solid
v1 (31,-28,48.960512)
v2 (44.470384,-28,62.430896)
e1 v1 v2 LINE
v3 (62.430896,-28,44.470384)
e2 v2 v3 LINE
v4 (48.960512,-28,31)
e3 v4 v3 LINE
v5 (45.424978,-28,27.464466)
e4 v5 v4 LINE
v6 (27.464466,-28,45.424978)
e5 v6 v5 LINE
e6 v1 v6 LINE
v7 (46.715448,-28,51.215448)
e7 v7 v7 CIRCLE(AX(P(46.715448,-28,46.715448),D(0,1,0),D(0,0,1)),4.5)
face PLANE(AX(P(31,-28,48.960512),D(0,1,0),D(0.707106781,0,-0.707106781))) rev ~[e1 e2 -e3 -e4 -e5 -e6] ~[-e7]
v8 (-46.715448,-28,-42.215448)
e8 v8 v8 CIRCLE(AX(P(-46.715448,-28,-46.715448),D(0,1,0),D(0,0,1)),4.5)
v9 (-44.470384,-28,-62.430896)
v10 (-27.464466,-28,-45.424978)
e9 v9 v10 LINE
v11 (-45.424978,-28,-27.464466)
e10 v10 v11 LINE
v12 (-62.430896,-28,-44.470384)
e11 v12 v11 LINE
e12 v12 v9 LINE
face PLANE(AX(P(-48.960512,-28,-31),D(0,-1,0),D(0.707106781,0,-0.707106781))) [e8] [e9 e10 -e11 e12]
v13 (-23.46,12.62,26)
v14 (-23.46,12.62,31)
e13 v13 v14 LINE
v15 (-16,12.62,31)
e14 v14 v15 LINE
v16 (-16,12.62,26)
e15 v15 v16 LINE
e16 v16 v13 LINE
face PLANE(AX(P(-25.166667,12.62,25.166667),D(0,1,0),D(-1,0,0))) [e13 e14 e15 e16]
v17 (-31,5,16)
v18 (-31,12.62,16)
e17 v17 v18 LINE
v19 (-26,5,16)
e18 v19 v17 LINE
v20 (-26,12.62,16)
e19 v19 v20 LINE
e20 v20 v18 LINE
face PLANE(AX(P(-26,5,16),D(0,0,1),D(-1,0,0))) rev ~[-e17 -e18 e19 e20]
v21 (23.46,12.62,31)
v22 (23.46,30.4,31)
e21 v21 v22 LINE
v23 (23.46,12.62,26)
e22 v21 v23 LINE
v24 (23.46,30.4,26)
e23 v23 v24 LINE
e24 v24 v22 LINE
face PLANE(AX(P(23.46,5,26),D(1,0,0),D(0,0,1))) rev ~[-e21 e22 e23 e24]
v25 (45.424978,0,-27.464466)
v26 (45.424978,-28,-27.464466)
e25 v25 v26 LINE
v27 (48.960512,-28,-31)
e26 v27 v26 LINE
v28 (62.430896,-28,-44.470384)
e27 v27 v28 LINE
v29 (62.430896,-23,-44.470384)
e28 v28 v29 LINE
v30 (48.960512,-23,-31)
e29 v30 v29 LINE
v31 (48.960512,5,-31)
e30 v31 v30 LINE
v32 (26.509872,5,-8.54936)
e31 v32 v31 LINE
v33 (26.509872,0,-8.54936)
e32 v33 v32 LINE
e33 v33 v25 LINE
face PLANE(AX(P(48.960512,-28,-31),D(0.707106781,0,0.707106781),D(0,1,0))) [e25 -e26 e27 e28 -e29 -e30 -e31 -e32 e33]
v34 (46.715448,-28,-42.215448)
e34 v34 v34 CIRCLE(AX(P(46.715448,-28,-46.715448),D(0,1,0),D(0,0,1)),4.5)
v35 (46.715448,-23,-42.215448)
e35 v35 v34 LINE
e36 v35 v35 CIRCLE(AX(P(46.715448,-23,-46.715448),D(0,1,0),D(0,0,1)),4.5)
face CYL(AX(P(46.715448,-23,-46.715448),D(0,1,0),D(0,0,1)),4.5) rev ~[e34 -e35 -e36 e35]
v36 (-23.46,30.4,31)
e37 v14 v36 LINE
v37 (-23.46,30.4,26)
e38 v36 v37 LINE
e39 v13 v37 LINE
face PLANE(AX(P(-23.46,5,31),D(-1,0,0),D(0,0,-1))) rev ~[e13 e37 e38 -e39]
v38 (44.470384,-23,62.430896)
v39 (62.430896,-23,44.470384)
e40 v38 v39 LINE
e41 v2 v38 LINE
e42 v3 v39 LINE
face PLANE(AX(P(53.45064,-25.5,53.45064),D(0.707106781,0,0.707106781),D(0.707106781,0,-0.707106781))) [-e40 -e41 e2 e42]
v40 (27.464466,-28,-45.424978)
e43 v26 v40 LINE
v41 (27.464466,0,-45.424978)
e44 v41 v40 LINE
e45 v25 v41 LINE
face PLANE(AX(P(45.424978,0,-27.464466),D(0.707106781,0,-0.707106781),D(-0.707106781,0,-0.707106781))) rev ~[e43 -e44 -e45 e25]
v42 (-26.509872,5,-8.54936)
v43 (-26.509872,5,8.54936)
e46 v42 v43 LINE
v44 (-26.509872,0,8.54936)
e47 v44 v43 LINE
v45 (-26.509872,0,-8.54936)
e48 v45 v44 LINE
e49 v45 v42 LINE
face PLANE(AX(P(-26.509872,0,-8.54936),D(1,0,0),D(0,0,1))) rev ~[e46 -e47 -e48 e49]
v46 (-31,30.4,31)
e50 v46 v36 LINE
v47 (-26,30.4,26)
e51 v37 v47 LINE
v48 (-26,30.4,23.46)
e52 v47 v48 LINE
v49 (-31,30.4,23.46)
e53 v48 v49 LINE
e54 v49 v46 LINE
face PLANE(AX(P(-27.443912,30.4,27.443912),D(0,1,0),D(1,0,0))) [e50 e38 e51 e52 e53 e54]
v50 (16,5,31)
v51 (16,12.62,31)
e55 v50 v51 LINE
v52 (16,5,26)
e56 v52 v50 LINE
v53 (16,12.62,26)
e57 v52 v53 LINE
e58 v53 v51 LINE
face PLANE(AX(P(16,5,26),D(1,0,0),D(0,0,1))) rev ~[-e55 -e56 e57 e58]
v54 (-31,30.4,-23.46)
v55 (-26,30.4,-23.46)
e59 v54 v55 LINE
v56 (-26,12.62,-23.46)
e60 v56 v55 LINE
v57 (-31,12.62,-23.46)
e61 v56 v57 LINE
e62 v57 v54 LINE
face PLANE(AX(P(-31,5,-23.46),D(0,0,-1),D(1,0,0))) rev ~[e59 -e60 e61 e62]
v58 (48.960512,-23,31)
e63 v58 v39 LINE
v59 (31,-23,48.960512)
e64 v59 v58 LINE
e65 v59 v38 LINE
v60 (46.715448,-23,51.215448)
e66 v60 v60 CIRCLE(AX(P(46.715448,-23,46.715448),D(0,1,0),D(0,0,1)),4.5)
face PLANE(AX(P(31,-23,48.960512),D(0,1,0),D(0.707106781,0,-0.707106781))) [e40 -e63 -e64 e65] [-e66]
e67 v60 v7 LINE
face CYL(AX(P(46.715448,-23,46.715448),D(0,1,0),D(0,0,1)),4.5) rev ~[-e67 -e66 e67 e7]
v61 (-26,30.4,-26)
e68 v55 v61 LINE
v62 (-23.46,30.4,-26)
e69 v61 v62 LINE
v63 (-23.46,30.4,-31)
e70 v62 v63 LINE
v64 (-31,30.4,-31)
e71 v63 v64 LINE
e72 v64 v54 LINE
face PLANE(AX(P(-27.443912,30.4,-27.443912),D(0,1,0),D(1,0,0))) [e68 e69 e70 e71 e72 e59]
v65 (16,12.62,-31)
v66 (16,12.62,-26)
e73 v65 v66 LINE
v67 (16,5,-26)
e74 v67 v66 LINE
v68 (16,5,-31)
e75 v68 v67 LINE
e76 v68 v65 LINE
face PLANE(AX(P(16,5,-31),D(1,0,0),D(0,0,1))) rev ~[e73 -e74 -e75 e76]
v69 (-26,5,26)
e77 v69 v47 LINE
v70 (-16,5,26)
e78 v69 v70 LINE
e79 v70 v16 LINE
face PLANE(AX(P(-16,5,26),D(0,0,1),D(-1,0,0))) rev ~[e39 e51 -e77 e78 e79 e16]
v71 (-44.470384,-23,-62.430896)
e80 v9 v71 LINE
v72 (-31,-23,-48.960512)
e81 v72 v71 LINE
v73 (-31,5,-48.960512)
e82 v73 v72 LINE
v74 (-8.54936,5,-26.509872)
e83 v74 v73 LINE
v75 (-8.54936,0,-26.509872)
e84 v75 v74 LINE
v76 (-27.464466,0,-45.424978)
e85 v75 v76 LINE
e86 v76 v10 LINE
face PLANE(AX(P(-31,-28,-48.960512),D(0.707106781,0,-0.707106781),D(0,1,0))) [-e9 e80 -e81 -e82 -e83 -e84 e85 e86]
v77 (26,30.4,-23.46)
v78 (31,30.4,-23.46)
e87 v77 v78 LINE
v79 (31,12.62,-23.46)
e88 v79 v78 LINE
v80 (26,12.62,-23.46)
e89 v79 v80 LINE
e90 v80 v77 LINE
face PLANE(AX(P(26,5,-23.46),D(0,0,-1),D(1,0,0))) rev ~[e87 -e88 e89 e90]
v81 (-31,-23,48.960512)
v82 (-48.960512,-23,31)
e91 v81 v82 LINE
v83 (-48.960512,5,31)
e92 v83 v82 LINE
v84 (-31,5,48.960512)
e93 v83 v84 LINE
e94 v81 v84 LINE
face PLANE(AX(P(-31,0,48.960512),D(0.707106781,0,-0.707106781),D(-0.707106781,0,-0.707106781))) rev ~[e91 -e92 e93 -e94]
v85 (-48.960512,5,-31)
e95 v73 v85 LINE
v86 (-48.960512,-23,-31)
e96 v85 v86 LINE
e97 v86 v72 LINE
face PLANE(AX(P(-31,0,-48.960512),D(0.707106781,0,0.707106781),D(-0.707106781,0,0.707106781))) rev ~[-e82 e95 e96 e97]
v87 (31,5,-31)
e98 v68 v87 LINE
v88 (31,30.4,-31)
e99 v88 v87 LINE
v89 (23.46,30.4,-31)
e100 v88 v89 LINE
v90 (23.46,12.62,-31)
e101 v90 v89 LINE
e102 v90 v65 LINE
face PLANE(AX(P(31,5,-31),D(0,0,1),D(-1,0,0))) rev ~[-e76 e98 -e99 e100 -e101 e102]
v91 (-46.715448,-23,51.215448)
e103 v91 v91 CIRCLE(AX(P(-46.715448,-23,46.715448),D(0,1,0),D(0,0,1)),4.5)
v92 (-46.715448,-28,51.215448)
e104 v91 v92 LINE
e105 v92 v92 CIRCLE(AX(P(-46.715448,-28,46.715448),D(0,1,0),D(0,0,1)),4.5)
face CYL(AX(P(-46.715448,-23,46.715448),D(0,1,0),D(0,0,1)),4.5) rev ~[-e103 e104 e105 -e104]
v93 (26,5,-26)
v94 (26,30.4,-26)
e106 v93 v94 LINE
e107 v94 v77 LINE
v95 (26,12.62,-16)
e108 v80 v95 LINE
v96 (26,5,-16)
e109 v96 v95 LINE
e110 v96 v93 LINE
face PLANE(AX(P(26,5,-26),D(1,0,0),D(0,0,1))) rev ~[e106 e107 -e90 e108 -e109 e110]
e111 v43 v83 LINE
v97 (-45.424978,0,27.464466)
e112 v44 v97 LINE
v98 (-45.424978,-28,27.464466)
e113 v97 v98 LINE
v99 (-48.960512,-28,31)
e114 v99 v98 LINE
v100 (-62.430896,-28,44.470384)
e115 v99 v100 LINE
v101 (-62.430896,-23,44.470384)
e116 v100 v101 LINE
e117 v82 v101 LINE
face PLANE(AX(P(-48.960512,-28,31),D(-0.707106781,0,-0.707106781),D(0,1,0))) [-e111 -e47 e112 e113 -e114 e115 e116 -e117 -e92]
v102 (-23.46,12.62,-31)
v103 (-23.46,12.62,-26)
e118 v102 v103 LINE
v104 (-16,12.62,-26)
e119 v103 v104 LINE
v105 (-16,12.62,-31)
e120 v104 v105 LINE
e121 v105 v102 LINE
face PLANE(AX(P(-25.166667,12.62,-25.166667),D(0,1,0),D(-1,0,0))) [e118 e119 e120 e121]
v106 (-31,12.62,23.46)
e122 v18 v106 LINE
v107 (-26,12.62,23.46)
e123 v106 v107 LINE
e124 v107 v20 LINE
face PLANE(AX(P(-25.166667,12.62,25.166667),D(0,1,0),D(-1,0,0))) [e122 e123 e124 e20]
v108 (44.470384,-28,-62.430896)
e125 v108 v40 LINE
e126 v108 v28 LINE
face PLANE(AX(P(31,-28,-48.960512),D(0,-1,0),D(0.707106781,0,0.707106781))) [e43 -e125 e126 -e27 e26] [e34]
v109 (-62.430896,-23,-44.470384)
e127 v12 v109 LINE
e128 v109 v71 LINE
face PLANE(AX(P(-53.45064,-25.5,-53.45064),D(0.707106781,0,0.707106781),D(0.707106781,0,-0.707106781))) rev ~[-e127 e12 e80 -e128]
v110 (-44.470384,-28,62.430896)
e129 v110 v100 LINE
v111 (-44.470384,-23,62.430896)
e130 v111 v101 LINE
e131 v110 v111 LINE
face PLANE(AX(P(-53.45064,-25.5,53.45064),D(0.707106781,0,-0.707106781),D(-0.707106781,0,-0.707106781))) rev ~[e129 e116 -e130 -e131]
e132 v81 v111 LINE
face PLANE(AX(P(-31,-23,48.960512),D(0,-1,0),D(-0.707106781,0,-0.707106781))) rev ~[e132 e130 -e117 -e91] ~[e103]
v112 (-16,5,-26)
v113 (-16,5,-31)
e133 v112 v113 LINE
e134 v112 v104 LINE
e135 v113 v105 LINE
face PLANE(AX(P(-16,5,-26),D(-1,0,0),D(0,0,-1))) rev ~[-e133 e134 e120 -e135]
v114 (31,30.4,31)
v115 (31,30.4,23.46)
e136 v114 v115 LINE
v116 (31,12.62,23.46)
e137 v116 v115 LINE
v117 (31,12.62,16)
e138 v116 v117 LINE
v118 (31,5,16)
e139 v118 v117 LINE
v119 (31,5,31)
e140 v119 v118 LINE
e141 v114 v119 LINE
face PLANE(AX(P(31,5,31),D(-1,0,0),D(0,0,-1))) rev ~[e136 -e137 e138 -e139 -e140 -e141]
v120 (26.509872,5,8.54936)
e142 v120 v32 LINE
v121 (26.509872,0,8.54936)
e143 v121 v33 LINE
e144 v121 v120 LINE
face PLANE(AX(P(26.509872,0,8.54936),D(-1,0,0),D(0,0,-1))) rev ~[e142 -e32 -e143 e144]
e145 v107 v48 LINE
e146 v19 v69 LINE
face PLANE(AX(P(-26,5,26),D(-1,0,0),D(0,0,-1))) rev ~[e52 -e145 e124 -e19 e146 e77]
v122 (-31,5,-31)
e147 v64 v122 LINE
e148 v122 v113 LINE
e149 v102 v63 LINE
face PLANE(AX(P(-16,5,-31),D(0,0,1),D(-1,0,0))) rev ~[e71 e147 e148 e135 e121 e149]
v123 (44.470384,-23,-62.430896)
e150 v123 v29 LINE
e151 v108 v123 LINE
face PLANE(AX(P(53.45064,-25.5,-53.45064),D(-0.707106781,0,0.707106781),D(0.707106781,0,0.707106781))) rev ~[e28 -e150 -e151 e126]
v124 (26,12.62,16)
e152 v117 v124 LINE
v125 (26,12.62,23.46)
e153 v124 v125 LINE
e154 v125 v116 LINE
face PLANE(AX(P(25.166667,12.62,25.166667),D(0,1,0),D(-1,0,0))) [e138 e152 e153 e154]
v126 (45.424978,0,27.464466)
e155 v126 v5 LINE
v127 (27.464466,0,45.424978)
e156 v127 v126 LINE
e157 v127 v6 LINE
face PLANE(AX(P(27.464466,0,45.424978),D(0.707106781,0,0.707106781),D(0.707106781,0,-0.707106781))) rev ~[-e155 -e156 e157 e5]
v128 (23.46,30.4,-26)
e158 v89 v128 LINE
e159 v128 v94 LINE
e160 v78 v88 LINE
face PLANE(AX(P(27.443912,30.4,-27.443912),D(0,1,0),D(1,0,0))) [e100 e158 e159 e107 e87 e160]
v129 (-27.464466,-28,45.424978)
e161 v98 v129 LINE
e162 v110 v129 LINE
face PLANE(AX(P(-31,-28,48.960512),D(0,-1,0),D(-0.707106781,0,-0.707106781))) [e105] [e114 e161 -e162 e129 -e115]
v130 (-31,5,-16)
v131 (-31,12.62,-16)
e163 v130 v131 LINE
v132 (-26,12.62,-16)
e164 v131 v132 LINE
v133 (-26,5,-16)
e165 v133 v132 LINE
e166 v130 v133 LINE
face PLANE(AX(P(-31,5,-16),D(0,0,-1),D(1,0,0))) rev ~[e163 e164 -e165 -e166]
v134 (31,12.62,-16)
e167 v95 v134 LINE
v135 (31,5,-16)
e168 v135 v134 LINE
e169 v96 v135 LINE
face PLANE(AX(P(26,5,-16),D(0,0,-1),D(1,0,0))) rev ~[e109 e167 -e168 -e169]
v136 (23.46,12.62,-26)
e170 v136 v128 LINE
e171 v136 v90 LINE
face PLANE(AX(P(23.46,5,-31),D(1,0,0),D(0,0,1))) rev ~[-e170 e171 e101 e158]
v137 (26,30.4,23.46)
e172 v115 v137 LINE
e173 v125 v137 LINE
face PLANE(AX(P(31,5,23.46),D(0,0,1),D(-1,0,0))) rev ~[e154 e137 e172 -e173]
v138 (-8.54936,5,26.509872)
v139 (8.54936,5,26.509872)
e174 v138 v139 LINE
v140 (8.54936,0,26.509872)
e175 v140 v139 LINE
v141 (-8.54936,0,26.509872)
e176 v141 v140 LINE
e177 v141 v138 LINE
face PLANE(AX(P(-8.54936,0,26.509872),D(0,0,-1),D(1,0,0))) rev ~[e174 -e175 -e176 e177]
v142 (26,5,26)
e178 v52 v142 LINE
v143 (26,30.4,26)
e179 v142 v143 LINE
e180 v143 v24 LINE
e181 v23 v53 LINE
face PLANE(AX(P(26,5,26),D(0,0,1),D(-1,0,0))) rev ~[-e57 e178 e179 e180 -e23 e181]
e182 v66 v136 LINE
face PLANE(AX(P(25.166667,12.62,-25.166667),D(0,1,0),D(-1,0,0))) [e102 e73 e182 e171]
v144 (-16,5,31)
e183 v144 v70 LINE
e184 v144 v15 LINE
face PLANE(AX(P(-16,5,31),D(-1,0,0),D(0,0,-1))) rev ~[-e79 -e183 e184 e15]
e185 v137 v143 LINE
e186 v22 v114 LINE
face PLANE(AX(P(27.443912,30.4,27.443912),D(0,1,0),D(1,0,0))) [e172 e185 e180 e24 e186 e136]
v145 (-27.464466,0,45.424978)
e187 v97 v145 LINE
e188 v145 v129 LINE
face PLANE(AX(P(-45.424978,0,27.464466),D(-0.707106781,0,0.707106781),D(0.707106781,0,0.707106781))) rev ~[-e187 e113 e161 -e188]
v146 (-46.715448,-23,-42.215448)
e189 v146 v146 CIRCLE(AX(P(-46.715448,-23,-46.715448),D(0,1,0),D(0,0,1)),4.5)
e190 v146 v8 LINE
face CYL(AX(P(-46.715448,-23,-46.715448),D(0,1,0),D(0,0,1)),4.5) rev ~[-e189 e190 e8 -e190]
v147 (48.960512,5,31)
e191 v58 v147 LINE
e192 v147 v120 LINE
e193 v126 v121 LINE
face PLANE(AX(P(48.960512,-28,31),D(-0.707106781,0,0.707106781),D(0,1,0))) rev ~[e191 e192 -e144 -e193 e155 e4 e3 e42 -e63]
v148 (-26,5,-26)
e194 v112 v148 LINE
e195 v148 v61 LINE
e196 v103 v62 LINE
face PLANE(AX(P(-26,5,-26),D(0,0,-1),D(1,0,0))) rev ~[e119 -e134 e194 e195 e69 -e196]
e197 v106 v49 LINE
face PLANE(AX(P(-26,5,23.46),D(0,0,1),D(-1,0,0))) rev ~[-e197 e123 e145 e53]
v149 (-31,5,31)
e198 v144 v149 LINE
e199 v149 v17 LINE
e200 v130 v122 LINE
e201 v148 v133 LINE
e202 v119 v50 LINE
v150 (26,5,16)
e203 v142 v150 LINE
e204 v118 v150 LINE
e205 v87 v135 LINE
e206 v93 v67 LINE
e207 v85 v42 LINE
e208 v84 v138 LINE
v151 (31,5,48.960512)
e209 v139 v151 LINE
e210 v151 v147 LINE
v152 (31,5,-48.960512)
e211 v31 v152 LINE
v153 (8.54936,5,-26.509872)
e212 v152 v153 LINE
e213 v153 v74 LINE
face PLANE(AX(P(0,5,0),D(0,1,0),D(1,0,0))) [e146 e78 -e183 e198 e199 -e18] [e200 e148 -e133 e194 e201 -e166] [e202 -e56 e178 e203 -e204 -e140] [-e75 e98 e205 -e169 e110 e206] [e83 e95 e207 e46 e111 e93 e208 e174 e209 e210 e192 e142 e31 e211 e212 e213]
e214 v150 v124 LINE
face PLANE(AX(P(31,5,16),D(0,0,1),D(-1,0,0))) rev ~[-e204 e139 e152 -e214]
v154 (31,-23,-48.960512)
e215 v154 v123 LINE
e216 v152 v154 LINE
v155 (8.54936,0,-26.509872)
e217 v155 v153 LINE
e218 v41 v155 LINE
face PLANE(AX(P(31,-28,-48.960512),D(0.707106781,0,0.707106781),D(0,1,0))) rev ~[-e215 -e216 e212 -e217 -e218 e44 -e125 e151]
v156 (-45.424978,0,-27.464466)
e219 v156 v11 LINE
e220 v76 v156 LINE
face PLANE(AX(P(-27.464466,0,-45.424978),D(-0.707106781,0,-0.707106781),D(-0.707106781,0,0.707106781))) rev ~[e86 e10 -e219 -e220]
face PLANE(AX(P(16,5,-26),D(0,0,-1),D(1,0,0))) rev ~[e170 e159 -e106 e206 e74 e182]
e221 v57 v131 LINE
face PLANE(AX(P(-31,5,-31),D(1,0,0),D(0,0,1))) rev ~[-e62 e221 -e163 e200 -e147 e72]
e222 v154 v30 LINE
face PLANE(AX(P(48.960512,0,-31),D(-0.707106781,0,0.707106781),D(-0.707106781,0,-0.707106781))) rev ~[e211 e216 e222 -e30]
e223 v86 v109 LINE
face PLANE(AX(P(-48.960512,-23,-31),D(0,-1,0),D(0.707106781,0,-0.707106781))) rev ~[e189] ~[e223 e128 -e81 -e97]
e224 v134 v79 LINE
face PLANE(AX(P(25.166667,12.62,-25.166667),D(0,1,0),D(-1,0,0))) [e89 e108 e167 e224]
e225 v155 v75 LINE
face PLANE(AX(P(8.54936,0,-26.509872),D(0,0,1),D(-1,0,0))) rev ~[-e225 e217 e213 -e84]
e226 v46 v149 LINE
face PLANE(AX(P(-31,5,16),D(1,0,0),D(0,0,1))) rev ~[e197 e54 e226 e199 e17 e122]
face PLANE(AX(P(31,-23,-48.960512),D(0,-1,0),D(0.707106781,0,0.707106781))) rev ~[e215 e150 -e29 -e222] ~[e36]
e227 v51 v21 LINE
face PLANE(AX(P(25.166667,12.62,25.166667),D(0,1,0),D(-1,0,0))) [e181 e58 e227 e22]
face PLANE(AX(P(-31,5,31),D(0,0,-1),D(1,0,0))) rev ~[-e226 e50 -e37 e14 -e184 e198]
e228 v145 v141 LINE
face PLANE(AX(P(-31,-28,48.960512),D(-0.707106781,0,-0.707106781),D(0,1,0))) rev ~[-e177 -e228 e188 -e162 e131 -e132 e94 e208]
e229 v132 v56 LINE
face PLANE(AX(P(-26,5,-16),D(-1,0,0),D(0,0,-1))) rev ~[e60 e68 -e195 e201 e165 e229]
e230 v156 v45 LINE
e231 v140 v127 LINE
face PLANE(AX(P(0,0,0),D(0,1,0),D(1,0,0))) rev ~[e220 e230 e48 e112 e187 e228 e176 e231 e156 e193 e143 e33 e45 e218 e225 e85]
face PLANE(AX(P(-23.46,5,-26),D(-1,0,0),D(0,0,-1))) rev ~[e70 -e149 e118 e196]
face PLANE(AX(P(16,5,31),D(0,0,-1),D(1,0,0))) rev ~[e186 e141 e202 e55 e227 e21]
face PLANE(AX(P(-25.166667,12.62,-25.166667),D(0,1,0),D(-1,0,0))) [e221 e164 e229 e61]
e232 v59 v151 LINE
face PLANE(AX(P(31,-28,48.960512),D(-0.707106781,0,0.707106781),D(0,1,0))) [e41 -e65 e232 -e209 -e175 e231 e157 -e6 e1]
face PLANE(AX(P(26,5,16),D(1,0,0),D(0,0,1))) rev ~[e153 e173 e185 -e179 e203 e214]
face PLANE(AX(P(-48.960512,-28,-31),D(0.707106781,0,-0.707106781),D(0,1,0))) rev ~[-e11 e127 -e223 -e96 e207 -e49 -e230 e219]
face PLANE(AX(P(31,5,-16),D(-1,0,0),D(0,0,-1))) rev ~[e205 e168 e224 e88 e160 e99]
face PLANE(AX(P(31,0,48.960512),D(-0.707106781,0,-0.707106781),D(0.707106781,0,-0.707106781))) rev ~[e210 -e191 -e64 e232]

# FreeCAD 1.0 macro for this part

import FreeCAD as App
import Part
import Sketcher

V = App.Vector
Q = App.Units.Quantity

doc = App.newDocument("Part")
body = doc.addObject("PartDesign::Body", "Body")

# Sketch on XZ plane
sketch1 = body.newObject("Sketcher::SketchObject", "Sketch")
sketch1.AttachmentSupport = (doc.getObject("XZ_Plane"), [""])
sketch1.MapMode = "FlatFace"
sketch1.addGeometry(Part.LineSegment(V(-49, -31, 0), V(-27, -9, 0)), False)
sketch1.addGeometry(Part.LineSegment(V(-27, -9, 0), V(-27, 9, 0)), False)
sketch1.addGeometry(Part.LineSegment(V(-27, 9, 0), V(-49, 31, 0)), False)
sketch1.addGeometry(Part.LineSegment(V(-49, 31, 0), V(-31, 49, 0)), False)
sketch1.addGeometry(Part.LineSegment(V(-31, 49, 0), V(-9, 27, 0)), False)
sketch1.addGeometry(Part.LineSegment(V(-9, 27, 0), V(9, 27, 0)), False)
sketch1.addGeometry(Part.LineSegment(V(9, 27, 0), V(31, 49, 0)), False)
sketch1.addGeometry(Part.LineSegment(V(31, 49, 0), V(49, 31, 0)), False)
sketch1.addGeometry(Part.LineSegment(V(49, 31, 0), V(27, 9, 0)), False)
sketch1.addGeometry(Part.LineSegment(V(27, 9, 0), V(27, -9, 0)), False)
sketch1.addGeometry(Part.LineSegment(V(27, -9, 0), V(49, -31, 0)), False)
sketch1.addGeometry(Part.LineSegment(V(49, -31, 0), V(31, -49, 0)), False)
sketch1.addGeometry(Part.LineSegment(V(31, -49, 0), V(9, -27, 0)), False)
sketch1.addGeometry(Part.LineSegment(V(9, -27, 0), V(-9, -27, 0)), False)
sketch1.addGeometry(Part.LineSegment(V(-9, -27, 0), V(-31, -49, 0)), False)
sketch1.addGeometry(Part.LineSegment(V(-31, -49, 0), V(-49, -31, 0)), False)
sketch1.addConstraint(Sketcher.Constraint("Coincident", 0, 2, 1, 1))
sketch1.addConstraint(Sketcher.Constraint("Coincident", 1, 2, 2, 1))
sketch1.addConstraint(Sketcher.Constraint("Coincident", 2, 2, 3, 1))
sketch1.addConstraint(Sketcher.Constraint("Coincident", 3, 2, 4, 1))
sketch1.addConstraint(Sketcher.Constraint("Coincident", 4, 2, 5, 1))
sketch1.addConstraint(Sketcher.Constraint("Coincident", 5, 2, 6, 1))
sketch1.addConstraint(Sketcher.Constraint("Coincident", 6, 2, 7, 1))
sketch1.addConstraint(Sketcher.Constraint("Coincident", 7, 2, 8, 1))
sketch1.addConstraint(Sketcher.Constraint("Coincident", 8, 2, 9, 1))
sketch1.addConstraint(Sketcher.Constraint("Coincident", 9, 2, 10, 1))
sketch1.addConstraint(Sketcher.Constraint("Coincident", 10, 2, 11, 1))
sketch1.addConstraint(Sketcher.Constraint("Coincident", 11, 2, 12, 1))
sketch1.addConstraint(Sketcher.Constraint("Coincident", 12, 2, 13, 1))
sketch1.addConstraint(Sketcher.Constraint("Coincident", 13, 2, 14, 1))
sketch1.addConstraint(Sketcher.Constraint("Coincident", 14, 2, 15, 1))
sketch1.addConstraint(Sketcher.Constraint("Coincident", 15, 2, 0, 1))
sketch1.addConstraint(Sketcher.Constraint("Vertical", 1))
sketch1.addConstraint(Sketcher.Constraint("Horizontal", 5))
sketch1.addConstraint(Sketcher.Constraint("Vertical", 9))
sketch1.addConstraint(Sketcher.Constraint("Horizontal", 13))
sketch1.addConstraint(Sketcher.Constraint("Symmetric", 0, 2, 8, 2, -1, 1))
sketch1.addConstraint(Sketcher.Constraint("Symmetric", 2, 2, 10, 2, -1, 1))
sketch1.addConstraint(Sketcher.Constraint("Symmetric", 3, 2, 11, 2, -1, 1))
sketch1.addConstraint(Sketcher.Constraint("Symmetric", 4, 2, 12, 2, -1, 1))
sketch1.addConstraint(Sketcher.Constraint("Symmetric", 6, 2, 14, 2, -1, 1))
sketch1.addConstraint(Sketcher.Constraint("Symmetric", 7, 2, 15, 2, -1, 1))
sketch1.addConstraint(Sketcher.Constraint("Symmetric", 3, 2, 6, 2, -2))
sketch1.addConstraint(Sketcher.Constraint("Symmetric", 2, 2, 7, 2, -2))
sketch1.addConstraint(Sketcher.Constraint("Perpendicular", 0, 2))
sketch1.addConstraint(Sketcher.Constraint("Perpendicular", 2, 3))
sketch1.addConstraint(Sketcher.Constraint("Perpendicular", 3, 4))
sketch1.addConstraint(Sketcher.Constraint("Perpendicular", 4, 6))
sketch1.addConstraint(Sketcher.Constraint("Perpendicular", 6, 7))
sketch1.addConstraint(Sketcher.Constraint("Perpendicular", 8, 10))
sketch1.addConstraint(Sketcher.Constraint("Perpendicular", 12, 14))
sketch1.addConstraint(Sketcher.Constraint("Equal", 13, 1))
sketch1.addConstraint(Sketcher.Constraint("Equal", 2, 4))
sketch1.addConstraint(Sketcher.Constraint("Distance", 3, Q("1 in")))
sketch1.addConstraint(Sketcher.Constraint("Distance", 0, Q("1.25 in")))
sketch1.addConstraint(Sketcher.Constraint("DistanceX", 5, 1, 5, 2, 17.098719))
pad1 = body.newObject("PartDesign::Pad", "Pad")
pad1.Profile = sketch1
pad1.Length = 5
pad1.Reversed = True

# Sketch on XZ plane
sketch2 = body.newObject("Sketcher::SketchObject", "Sketch001")
sketch2.AttachmentSupport = (doc.getObject("XZ_Plane"), [""])
sketch2.MapMode = "FlatFace"
sketch2.AttachmentOffset = App.Placement(V(0, 0, -5), App.Rotation())
sketch2.addGeometry(Part.LineSegment(V(-31, 31, 0), V(-16, 31, 0)), False)
sketch2.addGeometry(Part.LineSegment(V(-16, 31, 0), V(-16, 26, 0)), False)
sketch2.addGeometry(Part.LineSegment(V(-16, 26, 0), V(-26, 26, 0)), False)
sketch2.addGeometry(Part.LineSegment(V(-26, 26, 0), V(-26, 16, 0)), False)
sketch2.addGeometry(Part.LineSegment(V(-26, 16, 0), V(-31, 16, 0)), False)
sketch2.addGeometry(Part.LineSegment(V(-31, 16, 0), V(-31, 31, 0)), False)
sketch2.addGeometry(Part.LineSegment(V(-31, -31, 0), V(-31, -16, 0)), False)
sketch2.addGeometry(Part.LineSegment(V(-31, -16, 0), V(-26, -16, 0)), False)
sketch2.addGeometry(Part.LineSegment(V(-26, -16, 0), V(-26, -26, 0)), False)
sketch2.addGeometry(Part.LineSegment(V(-26, -26, 0), V(-16, -26, 0)), False)
sketch2.addGeometry(Part.LineSegment(V(-16, -26, 0), V(-16, -31, 0)), False)
sketch2.addGeometry(Part.LineSegment(V(-16, -31, 0), V(-31, -31, 0)), False)
sketch2.addGeometry(Part.LineSegment(V(31, 31, 0), V(31, 16, 0)), False)
sketch2.addGeometry(Part.LineSegment(V(31, 16, 0), V(26, 16, 0)), False)
sketch2.addGeometry(Part.LineSegment(V(26, 16, 0), V(26, 26, 0)), False)
sketch2.addGeometry(Part.LineSegment(V(26, 26, 0), V(16, 26, 0)), False)
sketch2.addGeometry(Part.LineSegment(V(16, 26, 0), V(16, 31, 0)), False)
sketch2.addGeometry(Part.LineSegment(V(16, 31, 0), V(31, 31, 0)), False)
sketch2.addGeometry(Part.LineSegment(V(31, -31, 0), V(16, -31, 0)), False)
sketch2.addGeometry(Part.LineSegment(V(16, -31, 0), V(16, -26, 0)), False)
sketch2.addGeometry(Part.LineSegment(V(16, -26, 0), V(26, -26, 0)), False)
sketch2.addGeometry(Part.LineSegment(V(26, -26, 0), V(26, -16, 0)), False)
sketch2.addGeometry(Part.LineSegment(V(26, -16, 0), V(31, -16, 0)), False)
sketch2.addGeometry(Part.LineSegment(V(31, -16, 0), V(31, -31, 0)), False)
sketch2.addConstraint(Sketcher.Constraint("Coincident", 0, 2, 1, 1))
sketch2.addConstraint(Sketcher.Constraint("Coincident", 1, 2, 2, 1))
sketch2.addConstraint(Sketcher.Constraint("Coincident", 2, 2, 3, 1))
sketch2.addConstraint(Sketcher.Constraint("Coincident", 3, 2, 4, 1))
sketch2.addConstraint(Sketcher.Constraint("Coincident", 4, 2, 5, 1))
sketch2.addConstraint(Sketcher.Constraint("Coincident", 5, 2, 0, 1))
sketch2.addConstraint(Sketcher.Constraint("Coincident", 6, 2, 7, 1))
sketch2.addConstraint(Sketcher.Constraint("Coincident", 7, 2, 8, 1))
sketch2.addConstraint(Sketcher.Constraint("Coincident", 8, 2, 9, 1))
sketch2.addConstraint(Sketcher.Constraint("Coincident", 9, 2, 10, 1))
sketch2.addConstraint(Sketcher.Constraint("Coincident", 10, 2, 11, 1))
sketch2.addConstraint(Sketcher.Constraint("Coincident", 11, 2, 6, 1))
sketch2.addConstraint(Sketcher.Constraint("Coincident", 12, 2, 13, 1))
sketch2.addConstraint(Sketcher.Constraint("Coincident", 13, 2, 14, 1))
sketch2.addConstraint(Sketcher.Constraint("Coincident", 14, 2, 15, 1))
sketch2.addConstraint(Sketcher.Constraint("Coincident", 15, 2, 16, 1))
sketch2.addConstraint(Sketcher.Constraint("Coincident", 16, 2, 17, 1))
sketch2.addConstraint(Sketcher.Constraint("Coincident", 17, 2, 12, 1))
sketch2.addConstraint(Sketcher.Constraint("Coincident", 18, 2, 19, 1))
sketch2.addConstraint(Sketcher.Constraint("Coincident", 19, 2, 20, 1))
sketch2.addConstraint(Sketcher.Constraint("Coincident", 20, 2, 21, 1))
sketch2.addConstraint(Sketcher.Constraint("Coincident", 21, 2, 22, 1))
sketch2.addConstraint(Sketcher.Constraint("Coincident", 22, 2, 23, 1))
sketch2.addConstraint(Sketcher.Constraint("Coincident", 23, 2, 18, 1))
sketch2.addConstraint(Sketcher.Constraint("Horizontal", 0))
sketch2.addConstraint(Sketcher.Constraint("Vertical", 1))
sketch2.addConstraint(Sketcher.Constraint("Horizontal", 2))
sketch2.addConstraint(Sketcher.Constraint("Vertical", 3))
sketch2.addConstraint(Sketcher.Constraint("Horizontal", 4))
sketch2.addConstraint(Sketcher.Constraint("Vertical", 5))
sketch2.addConstraint(Sketcher.Constraint("Vertical", 6))
sketch2.addConstraint(Sketcher.Constraint("Horizontal", 7))
sketch2.addConstraint(Sketcher.Constraint("Vertical", 8))
sketch2.addConstraint(Sketcher.Constraint("Horizontal", 9))
sketch2.addConstraint(Sketcher.Constraint("Vertical", 10))
sketch2.addConstraint(Sketcher.Constraint("Horizontal", 11))
sketch2.addConstraint(Sketcher.Constraint("Vertical", 12))
sketch2.addConstraint(Sketcher.Constraint("Horizontal", 13))
sketch2.addConstraint(Sketcher.Constraint("Vertical", 14))
sketch2.addConstraint(Sketcher.Constraint("Horizontal", 15))
sketch2.addConstraint(Sketcher.Constraint("Vertical", 16))
sketch2.addConstraint(Sketcher.Constraint("Horizontal", 17))
sketch2.addConstraint(Sketcher.Constraint("Horizontal", 18))
sketch2.addConstraint(Sketcher.Constraint("Vertical", 19))
sketch2.addConstraint(Sketcher.Constraint("Horizontal", 20))
sketch2.addConstraint(Sketcher.Constraint("Vertical", 21))
sketch2.addConstraint(Sketcher.Constraint("Horizontal", 22))
sketch2.addConstraint(Sketcher.Constraint("Vertical", 23))
sketch2.addConstraint(Sketcher.Constraint("Symmetric", 6, 2, 12, 2, -1, 1))
sketch2.addConstraint(Sketcher.Constraint("Symmetric", 8, 2, 14, 2, -1, 1))
sketch2.addConstraint(Sketcher.Constraint("Symmetric", 10, 2, 16, 2, -1, 1))
sketch2.addConstraint(Sketcher.Constraint("Symmetric", 0, 2, 18, 2, -1, 1))
sketch2.addConstraint(Sketcher.Constraint("Symmetric", 2, 2, 20, 2, -1, 1))
sketch2.addConstraint(Sketcher.Constraint("Symmetric", 4, 2, 22, 2, -1, 1))
sketch2.addConstraint(Sketcher.Constraint("Symmetric", 4, 2, 12, 2, -2))
sketch2.addConstraint(Sketcher.Constraint("Symmetric", 2, 2, 14, 2, -2))
sketch2.addConstraint(Sketcher.Constraint("Symmetric", 0, 2, 16, 2, -2))
sketch2.addConstraint(Sketcher.Constraint("Equal", 22, 1))
sketch2.addConstraint(Sketcher.Constraint("Equal", 20, 3))
sketch2.addConstraint(Sketcher.Constraint("DistanceX", 0, 1, 0, 2, 15.0))
sketch2.addConstraint(Sketcher.Constraint("DistanceX", 2, 2, 2, 1, 10.0))
sketch2.addConstraint(Sketcher.Constraint("DistanceX", 0, 2, -1, 1, 16.0))
sketch2.addConstraint(Sketcher.Constraint("DistanceY", -1, 1, 0, 2, 31.0))
pad2 = body.newObject("PartDesign::Pad", "Pad001")
pad2.Profile = sketch2
pad2.Length = Q("0.3 in")
pad2.Reversed = True

# Sketch on XZ plane
sketch3 = body.newObject("Sketcher::SketchObject", "Sketch002")
sketch3.AttachmentSupport = (doc.getObject("XZ_Plane"), [""])
sketch3.MapMode = "FlatFace"
sketch3.addGeometry(Part.LineSegment(V(-31, 49, 0), V(-49, 31, 0)), False)
sketch3.addGeometry(Part.LineSegment(V(-49, 31, 0), V(-45, 27, 0)), False)
sketch3.addGeometry(Part.LineSegment(V(-45, 27, 0), V(-27, 45, 0)), False)
sketch3.addGeometry(Part.LineSegment(V(-27, 45, 0), V(-31, 49, 0)), False)
sketch3.addGeometry(Part.LineSegment(V(-49, -31, 0), V(-31, -49, 0)), False)
sketch3.addGeometry(Part.LineSegment(V(-31, -49, 0), V(-27, -45, 0)), False)
sketch3.addGeometry(Part.LineSegment(V(-27, -45, 0), V(-45, -27, 0)), False)
sketch3.addGeometry(Part.LineSegment(V(-45, -27, 0), V(-49, -31, 0)), False)
sketch3.addGeometry(Part.LineSegment(V(31, -49, 0), V(49, -31, 0)), False)
sketch3.addGeometry(Part.LineSegment(V(49, -31, 0), V(45, -27, 0)), False)
sketch3.addGeometry(Part.LineSegment(V(45, -27, 0), V(27, -45, 0)), False)
sketch3.addGeometry(Part.LineSegment(V(27, -45, 0), V(31, -49, 0)), False)
sketch3.addGeometry(Part.LineSegment(V(49, 31, 0), V(31, 49, 0)), False)
sketch3.addGeometry(Part.LineSegment(V(31, 49, 0), V(27, 45, 0)), False)
sketch3.addGeometry(Part.LineSegment(V(27, 45, 0), V(45, 27, 0)), False)
sketch3.addGeometry(Part.LineSegment(V(45, 27, 0), V(49, 31, 0)), False)
sketch3.addConstraint(Sketcher.Constraint("Coincident", 0, 2, 1, 1))
sketch3.addConstraint(Sketcher.Constraint("Coincident", 1, 2, 2, 1))
sketch3.addConstraint(Sketcher.Constraint("Coincident", 2, 2, 3, 1))
sketch3.addConstraint(Sketcher.Constraint("Coincident", 3, 2, 0, 1))
sketch3.addConstraint(Sketcher.Constraint("Coincident", 4, 2, 5, 1))
sketch3.addConstraint(Sketcher.Constraint("Coincident", 5, 2, 6, 1))
sketch3.addConstraint(Sketcher.Constraint("Coincident", 6, 2, 7, 1))
sketch3.addConstraint(Sketcher.Constraint("Coincident", 7, 2, 4, 1))
sketch3.addConstraint(Sketcher.Constraint("Coincident", 8, 2, 9, 1))
sketch3.addConstraint(Sketcher.Constraint("Coincident", 9, 2, 10, 1))
sketch3.addConstraint(Sketcher.Constraint("Coincident", 10, 2, 11, 1))
sketch3.addConstraint(Sketcher.Constraint("Coincident", 11, 2, 8, 1))
sketch3.addConstraint(Sketcher.Constraint("Coincident", 12, 2, 13, 1))
sketch3.addConstraint(Sketcher.Constraint("Coincident", 13, 2, 14, 1))
sketch3.addConstraint(Sketcher.Constraint("Coincident", 14, 2, 15, 1))
sketch3.addConstraint(Sketcher.Constraint("Coincident", 15, 2, 12, 1))
sketch3.addConstraint(Sketcher.Constraint("Symmetric", 0, 2, 8, 2, -1, 1))
sketch3.addConstraint(Sketcher.Constraint("Symmetric", 1, 2, 9, 2, -1, 1))
sketch3.addConstraint(Sketcher.Constraint("Symmetric", 2, 2, 10, 2, -1, 1))
sketch3.addConstraint(Sketcher.Constraint("Symmetric", 3, 2, 11, 2, -1, 1))
sketch3.addConstraint(Sketcher.Constraint("Symmetric", 4, 2, 12, 2, -1, 1))
sketch3.addConstraint(Sketcher.Constraint("Symmetric", 5, 2, 13, 2, -1, 1))
sketch3.addConstraint(Sketcher.Constraint("Symmetric", 6, 2, 14, 2, -1, 1))
sketch3.addConstraint(Sketcher.Constraint("Symmetric", 7, 2, 15, 2, -1, 1))
sketch3.addConstraint(Sketcher.Constraint("Symmetric", 7, 2, 8, 2, -2))
sketch3.addConstraint(Sketcher.Constraint("Symmetric", 6, 2, 9, 2, -2))
sketch3.addConstraint(Sketcher.Constraint("Symmetric", 5, 2, 10, 2, -2))
sketch3.addConstraint(Sketcher.Constraint("Symmetric", 4, 2, 11, 2, -2))
sketch3.addConstraint(Sketcher.Constraint("Perpendicular", 0, 1))
sketch3.addConstraint(Sketcher.Constraint("Perpendicular", 1, 2))
sketch3.addConstraint(Sketcher.Constraint("Perpendicular", 2, 3))
sketch3.addConstraint(Sketcher.Constraint("Parallel", 3, 4))
sketch3.addConstraint(Sketcher.Constraint("Distance", 0, Q("1 in")))
sketch3.addConstraint(Sketcher.Constraint("Distance", 1, 5.0))
sketch3.addConstraint(Sketcher.Constraint("DistanceY", -1, 1, 0, 2, 31.0))
sketch3.addConstraint(Sketcher.Constraint("DistanceX", 3, 2, -1, 1, 31.0))
pad3 = body.newObject("PartDesign::Pad", "Pad002")
pad3.Profile = sketch3
pad3.Length = 28

# Sketch on an angled plane
sketch4 = body.newObject("Sketcher::SketchObject", "Sketch003")
sketch4.Placement = App.Placement(V(104.086919, 0, 24.126407), App.Rotation(V(0.707106781, 0, 0.707106781), V(0, 0.999999999, 0), V(-0.707106781, 0, 0.707106781), "ZXY"))
sketch4.addGeometry(Part.LineSegment(V(-103.4, -23, 0), V(-103.4, -28, 0)), False)
sketch4.addGeometry(Part.LineSegment(V(-103.4, -28, 0), V(-78, -28, 0)), False)
sketch4.addGeometry(Part.LineSegment(V(-78, -28, 0), V(-78, -23, 0)), False)
sketch4.addGeometry(Part.LineSegment(V(-78, -23, 0), V(-103.4, -23, 0)), False)
sketch4.addConstraint(Sketcher.Constraint("Coincident", 0, 2, 1, 1))
sketch4.addConstraint(Sketcher.Constraint("Coincident", 1, 2, 2, 1))
sketch4.addConstraint(Sketcher.Constraint("Coincident", 2, 2, 3, 1))
sketch4.addConstraint(Sketcher.Constraint("Coincident", 3, 2, 0, 1))
sketch4.addConstraint(Sketcher.Constraint("Vertical", 0))
sketch4.addConstraint(Sketcher.Constraint("Horizontal", 1))
sketch4.addConstraint(Sketcher.Constraint("Vertical", 2))
sketch4.addConstraint(Sketcher.Constraint("Horizontal", 3))
sketch4.addConstraint(Sketcher.Constraint("DistanceX", 1, 1, 1, 2, Q("1 in")))
sketch4.addConstraint(Sketcher.Constraint("DistanceY", 0, 2, 0, 1, 5.0))
sketch4.addConstraint(Sketcher.Constraint("DistanceY", 0, 2, -1, 1, 28.0))
sketch4.addConstraint(Sketcher.Constraint("DistanceX", 0, 2, -1, 1, 103.360512))
pad4 = body.newObject("PartDesign::Pad", "Pad003")
pad4.Profile = sketch4
pad4.Length = Q("0.75 in")
pad4.Reversed = True

# Sketch on an angled plane
sketch5 = body.newObject("Sketcher::SketchObject", "Sketch004")
sketch5.Placement = App.Placement(V(32.446151, 0, -112.406663), App.Rotation(V(0.707106781, 0, -0.707106781), V(0, 0.999999999, 0), V(0.707106781, 0, 0.707106781), "ZXY"))
sketch5.addGeometry(Part.LineSegment(V(-115.1, -23, 0), V(-115.1, -28, 0)), False)
sketch5.addGeometry(Part.LineSegment(V(-115.1, -28, 0), V(-89.7, -28, 0)), False)
sketch5.addGeometry(Part.LineSegment(V(-89.7, -28, 0), V(-89.7, -23, 0)), False)
sketch5.addGeometry(Part.LineSegment(V(-89.7, -23, 0), V(-115.1, -23, 0)), False)
sketch5.addConstraint(Sketcher.Constraint("Coincident", 0, 2, 1, 1))
sketch5.addConstraint(Sketcher.Constraint("Coincident", 1, 2, 2, 1))
sketch5.addConstraint(Sketcher.Constraint("Coincident", 2, 2, 3, 1))
sketch5.addConstraint(Sketcher.Constraint("Coincident", 3, 2, 0, 1))
sketch5.addConstraint(Sketcher.Constraint("Vertical", 0))
sketch5.addConstraint(Sketcher.Constraint("Horizontal", 1))
sketch5.addConstraint(Sketcher.Constraint("Vertical", 2))
sketch5.addConstraint(Sketcher.Constraint("Horizontal", 3))
sketch5.addConstraint(Sketcher.Constraint("DistanceX", 1, 1, 1, 2, Q("1 in")))
sketch5.addConstraint(Sketcher.Constraint("DistanceY", 0, 2, 0, 1, 5.0))
sketch5.addConstraint(Sketcher.Constraint("DistanceY", 0, 2, -1, 1, 28.0))
sketch5.addConstraint(Sketcher.Constraint("DistanceX", 0, 2, -1, 1, 115.126407))
pad5 = body.newObject("PartDesign::Pad", "Pad004")
pad5.Profile = sketch5
pad5.Length = Q("0.75 in")
pad5.Reversed = True

# Sketch on an angled plane
sketch6 = body.newObject("Sketcher::SketchObject", "Sketch005")
sketch6.Placement = App.Placement(V(-39.980256, 0, 39.980256), App.Rotation(V(-0.707106781, 0, -0.707106781), V(0, 0.999999999, 0), V(0.707106781, 0, -0.707106781), "ZXY"))
sketch6.addGeometry(Part.LineSegment(V(-12.7, -23, 0), V(-12.7, -28, 0)), False)
sketch6.addGeometry(Part.LineSegment(V(-12.7, -28, 0), V(12.7, -28, 0)), False)
sketch6.addGeometry(Part.LineSegment(V(12.7, -28, 0), V(12.7, -23, 0)), False)
sketch6.addGeometry(Part.LineSegment(V(12.7, -23, 0), V(-12.7, -23, 0)), False)
sketch6.addConstraint(Sketcher.Constraint("Coincident", 0, 2, 1, 1))
sketch6.addConstraint(Sketcher.Constraint("Coincident", 1, 2, 2, 1))
sketch6.addConstraint(Sketcher.Constraint("Coincident", 2, 2, 3, 1))
sketch6.addConstraint(Sketcher.Constraint("Coincident", 3, 2, 0, 1))
sketch6.addConstraint(Sketcher.Constraint("Vertical", 0))
sketch6.addConstraint(Sketcher.Constraint("Horizontal", 1))
sketch6.addConstraint(Sketcher.Constraint("Vertical", 2))
sketch6.addConstraint(Sketcher.Constraint("Horizontal", 3))
sketch6.addConstraint(Sketcher.Constraint("DistanceX", 1, 1, 1, 2, Q("1 in")))
sketch6.addConstraint(Sketcher.Constraint("DistanceX", 0, 2, -1, 1, Q("0.5 in")))
sketch6.addConstraint(Sketcher.Constraint("DistanceY", 0, 2, 0, 1, 5.0))
sketch6.addConstraint(Sketcher.Constraint("DistanceY", 0, 2, -1, 1, 28.0))
pad6 = body.newObject("PartDesign::Pad", "Pad005")
pad6.Profile = sketch6
pad6.Length = Q("0.75 in")
pad6.Reversed = True

# Sketch on an angled plane
sketch7 = body.newObject("Sketcher::SketchObject", "Sketch006")
sketch7.Placement = App.Placement(V(39.980256, 0, 39.980256), App.Rotation(V(0.707106781, 0, -0.707106781), V(0, 0.999999999, 0), V(0.707106781, 0, 0.707106781), "ZXY"))
sketch7.addGeometry(Part.LineSegment(V(-12.7, -23, 0), V(-12.7, -28, 0)), False)
sketch7.addGeometry(Part.LineSegment(V(-12.7, -28, 0), V(12.7, -28, 0)), False)
sketch7.addGeometry(Part.LineSegment(V(12.7, -28, 0), V(12.7, -23, 0)), False)
sketch7.addGeometry(Part.LineSegment(V(12.7, -23, 0), V(-12.7, -23, 0)), False)
sketch7.addConstraint(Sketcher.Constraint("Coincident", 0, 2, 1, 1))
sketch7.addConstraint(Sketcher.Constraint("Coincident", 1, 2, 2, 1))
sketch7.addConstraint(Sketcher.Constraint("Coincident", 2, 2, 3, 1))
sketch7.addConstraint(Sketcher.Constraint("Coincident", 3, 2, 0, 1))
sketch7.addConstraint(Sketcher.Constraint("Vertical", 0))
sketch7.addConstraint(Sketcher.Constraint("Horizontal", 1))
sketch7.addConstraint(Sketcher.Constraint("Vertical", 2))
sketch7.addConstraint(Sketcher.Constraint("Horizontal", 3))
sketch7.addConstraint(Sketcher.Constraint("DistanceX", 1, 1, 1, 2, Q("1 in")))
sketch7.addConstraint(Sketcher.Constraint("DistanceX", 0, 2, -1, 1, Q("0.5 in")))
sketch7.addConstraint(Sketcher.Constraint("DistanceY", 0, 2, 0, 1, 5.0))
sketch7.addConstraint(Sketcher.Constraint("DistanceY", 0, 2, -1, 1, 28.0))
pad7 = body.newObject("PartDesign::Pad", "Pad006")
pad7.Profile = sketch7
pad7.Length = Q("0.75 in")

# Sketch on XZ plane
sketch8 = body.newObject("Sketcher::SketchObject", "Sketch007")
sketch8.AttachmentSupport = (doc.getObject("XZ_Plane"), [""])
sketch8.MapMode = "FlatFace"
sketch8.AttachmentOffset = App.Placement(V(0, 0, 23), App.Rotation())
sketch8.addGeometry(Part.Circle(V(46.7, 46.7, 0), V(0, 0, 1), 4.5), False)
sketch8.addGeometry(Part.Circle(V(46.7, -46.7, 0), V(0, 0, 1), 4.5), False)
sketch8.addGeometry(Part.Circle(V(-46.7, -46.7, 0), V(0, 0, 1), 4.5), False)
sketch8.addGeometry(Part.Circle(V(-46.7, 46.7, 0), V(0, 0, 1), 4.5), False)
sketch8.addConstraint(Sketcher.Constraint("Equal", 0, 1))
sketch8.addConstraint(Sketcher.Constraint("Equal", 1, 2))
sketch8.addConstraint(Sketcher.Constraint("Equal", 2, 3))
sketch8.addConstraint(Sketcher.Constraint("Symmetric", 0, 3, 2, 3, -1, 1))
sketch8.addConstraint(Sketcher.Constraint("Symmetric", 1, 3, 3, 3, -1, 1))
sketch8.addConstraint(Sketcher.Constraint("Symmetric", 1, 3, 2, 3, -2))
sketch8.addConstraint(Sketcher.Constraint("Diameter", 0, 9.0))
sketch8.addConstraint(Sketcher.Constraint("DistanceX", -1, 1, 0, 3, 46.715448))
sketch8.addConstraint(Sketcher.Constraint("DistanceY", -1, 1, 0, 3, 46.715448))
pocket1 = body.newObject("PartDesign::Pocket", "Pocket")
pocket1.Profile = sketch8
pocket1.Length = Q("0.5 in")
pocket1.Reversed = True

# Sketch on XZ plane
sketch9 = body.newObject("Sketcher::SketchObject", "Sketch008")
sketch9.AttachmentSupport = (doc.getObject("XZ_Plane"), [""])
sketch9.MapMode = "FlatFace"
sketch9.AttachmentOffset = App.Placement(V(0, 0, -5), App.Rotation())
sketch9.addGeometry(Part.LineSegment(V(31, 31, 0), V(31, 23.5, 0)), False)
sketch9.addGeometry(Part.LineSegment(V(31, 23.5, 0), V(26, 23.5, 0)), False)
sketch9.addGeometry(Part.LineSegment(V(26, 23.5, 0), V(26, 26, 0)), False)
sketch9.addGeometry(Part.LineSegment(V(26, 26, 0), V(23.5, 26, 0)), False)
sketch9.addGeometry(Part.LineSegment(V(23.5, 26, 0), V(23.5, 31, 0)), False)
sketch9.addGeometry(Part.LineSegment(V(23.5, 31, 0), V(31, 31, 0)), False)
sketch9.addGeometry(Part.LineSegment(V(23.5, -31, 0), V(23.5, -26, 0)), False)
sketch9.addGeometry(Part.LineSegment(V(23.5, -26, 0), V(26, -26, 0)), False)
sketch9.addGeometry(Part.LineSegment(V(26, -26, 0), V(26, -23.5, 0)), False)
sketch9.addGeometry(Part.LineSegment(V(26, -23.5, 0), V(31, -23.5, 0)), False)
sketch9.addGeometry(Part.LineSegment(V(31, -23.5, 0), V(31, -31, 0)), False)
sketch9.addGeometry(Part.LineSegment(V(31, -31, 0), V(23.5, -31, 0)), False)
sketch9.addGeometry(Part.LineSegment(V(-31, -31, 0), V(-31, -23.5, 0)), False)
sketch9.addGeometry(Part.LineSegment(V(-31, -23.5, 0), V(-26, -23.5, 0)), False)
sketch9.addGeometry(Part.LineSegment(V(-26, -23.5, 0), V(-26, -26, 0)), False)
sketch9.addGeometry(Part.LineSegment(V(-26, -26, 0), V(-23.5, -26, 0)), False)
sketch9.addGeometry(Part.LineSegment(V(-23.5, -26, 0), V(-23.5, -31, 0)), False)
sketch9.addGeometry(Part.LineSegment(V(-23.5, -31, 0), V(-31, -31, 0)), False)
sketch9.addGeometry(Part.LineSegment(V(-23.5, 31, 0), V(-23.5, 26, 0)), False)
sketch9.addGeometry(Part.LineSegment(V(-23.5, 26, 0), V(-26, 26, 0)), False)
sketch9.addGeometry(Part.LineSegment(V(-26, 26, 0), V(-26, 23.5, 0)), False)
sketch9.addGeometry(Part.LineSegment(V(-26, 23.5, 0), V(-31, 23.5, 0)), False)
sketch9.addGeometry(Part.LineSegment(V(-31, 23.5, 0), V(-31, 31, 0)), False)
sketch9.addGeometry(Part.LineSegment(V(-31, 31, 0), V(-23.5, 31, 0)), False)
sketch9.addConstraint(Sketcher.Constraint("Coincident", 0, 2, 1, 1))
sketch9.addConstraint(Sketcher.Constraint("Coincident", 1, 2, 2, 1))
sketch9.addConstraint(Sketcher.Constraint("Coincident", 2, 2, 3, 1))
sketch9.addConstraint(Sketcher.Constraint("Coincident", 3, 2, 4, 1))
sketch9.addConstraint(Sketcher.Constraint("Coincident", 4, 2, 5, 1))
sketch9.addConstraint(Sketcher.Constraint("Coincident", 5, 2, 0, 1))
sketch9.addConstraint(Sketcher.Constraint("Coincident", 6, 2, 7, 1))
sketch9.addConstraint(Sketcher.Constraint("Coincident", 7, 2, 8, 1))
sketch9.addConstraint(Sketcher.Constraint("Coincident", 8, 2, 9, 1))
sketch9.addConstraint(Sketcher.Constraint("Coincident", 9, 2, 10, 1))
sketch9.addConstraint(Sketcher.Constraint("Coincident", 10, 2, 11, 1))
sketch9.addConstraint(Sketcher.Constraint("Coincident", 11, 2, 6, 1))
sketch9.addConstraint(Sketcher.Constraint("Coincident", 12, 2, 13, 1))
sketch9.addConstraint(Sketcher.Constraint("Coincident", 13, 2, 14, 1))
sketch9.addConstraint(Sketcher.Constraint("Coincident", 14, 2, 15, 1))
sketch9.addConstraint(Sketcher.Constraint("Coincident", 15, 2, 16, 1))
sketch9.addConstraint(Sketcher.Constraint("Coincident", 16, 2, 17, 1))
sketch9.addConstraint(Sketcher.Constraint("Coincident", 17, 2, 12, 1))
sketch9.addConstraint(Sketcher.Constraint("Coincident", 18, 2, 19, 1))
sketch9.addConstraint(Sketcher.Constraint("Coincident", 19, 2, 20, 1))
sketch9.addConstraint(Sketcher.Constraint("Coincident", 20, 2, 21, 1))
sketch9.addConstraint(Sketcher.Constraint("Coincident", 21, 2, 22, 1))
sketch9.addConstraint(Sketcher.Constraint("Coincident", 22, 2, 23, 1))
sketch9.addConstraint(Sketcher.Constraint("Coincident", 23, 2, 18, 1))
sketch9.addConstraint(Sketcher.Constraint("Vertical", 0))
sketch9.addConstraint(Sketcher.Constraint("Horizontal", 1))
sketch9.addConstraint(Sketcher.Constraint("Vertical", 2))
sketch9.addConstraint(Sketcher.Constraint("Horizontal", 3))
sketch9.addConstraint(Sketcher.Constraint("Vertical", 4))
sketch9.addConstraint(Sketcher.Constraint("Horizontal", 5))
sketch9.addConstraint(Sketcher.Constraint("Vertical", 6))
sketch9.addConstraint(Sketcher.Constraint("Horizontal", 7))
sketch9.addConstraint(Sketcher.Constraint("Vertical", 8))
sketch9.addConstraint(Sketcher.Constraint("Horizontal", 9))
sketch9.addConstraint(Sketcher.Constraint("Vertical", 10))
sketch9.addConstraint(Sketcher.Constraint("Horizontal", 11))
sketch9.addConstraint(Sketcher.Constraint("Vertical", 12))
sketch9.addConstraint(Sketcher.Constraint("Horizontal", 13))
sketch9.addConstraint(Sketcher.Constraint("Vertical", 14))
sketch9.addConstraint(Sketcher.Constraint("Horizontal", 15))
sketch9.addConstraint(Sketcher.Constraint("Vertical", 16))
sketch9.addConstraint(Sketcher.Constraint("Horizontal", 17))
sketch9.addConstraint(Sketcher.Constraint("Vertical", 18))
sketch9.addConstraint(Sketcher.Constraint("Horizontal", 19))
sketch9.addConstraint(Sketcher.Constraint("Vertical", 20))
sketch9.addConstraint(Sketcher.Constraint("Horizontal", 21))
sketch9.addConstraint(Sketcher.Constraint("Vertical", 22))
sketch9.addConstraint(Sketcher.Constraint("Horizontal", 23))
sketch9.addConstraint(Sketcher.Constraint("Symmetric", 0, 2, 12, 2, -1, 1))
sketch9.addConstraint(Sketcher.Constraint("Symmetric", 2, 2, 14, 2, -1, 1))
sketch9.addConstraint(Sketcher.Constraint("Symmetric", 4, 2, 16, 2, -1, 1))
sketch9.addConstraint(Sketcher.Constraint("Symmetric", 6, 2, 18, 2, -1, 1))
sketch9.addConstraint(Sketcher.Constraint("Symmetric", 8, 2, 20, 2, -1, 1))
sketch9.addConstraint(Sketcher.Constraint("Symmetric", 10, 2, 22, 2, -1, 1))
sketch9.addConstraint(Sketcher.Constraint("Symmetric", 9, 2, 12, 2, -2))
sketch9.addConstraint(Sketcher.Constraint("Symmetric", 7, 2, 14, 2, -2))
sketch9.addConstraint(Sketcher.Constraint("Symmetric", 11, 2, 16, 2, -2))
sketch9.addConstraint(Sketcher.Constraint("Equal", 23, 0))
sketch9.addConstraint(Sketcher.Constraint("Equal", 19, 2))
sketch9.addConstraint(Sketcher.Constraint("DistanceX", 3, 2, 3, 1, Q("0.1 in")))
sketch9.addConstraint(Sketcher.Constraint("DistanceX", 1, 2, 1, 1, 5.0))
sketch9.addConstraint(Sketcher.Constraint("DistanceX", -1, 1, 0, 2, 31.0))
sketch9.addConstraint(Sketcher.Constraint("DistanceY", -1, 1, 0, 2, 23.46))
pad8 = body.newObject("PartDesign::Pad", "Pad007")
pad8.Profile = sketch9
pad8.Length = Q("1 in")
pad8.Reversed = True

doc.recompute()
